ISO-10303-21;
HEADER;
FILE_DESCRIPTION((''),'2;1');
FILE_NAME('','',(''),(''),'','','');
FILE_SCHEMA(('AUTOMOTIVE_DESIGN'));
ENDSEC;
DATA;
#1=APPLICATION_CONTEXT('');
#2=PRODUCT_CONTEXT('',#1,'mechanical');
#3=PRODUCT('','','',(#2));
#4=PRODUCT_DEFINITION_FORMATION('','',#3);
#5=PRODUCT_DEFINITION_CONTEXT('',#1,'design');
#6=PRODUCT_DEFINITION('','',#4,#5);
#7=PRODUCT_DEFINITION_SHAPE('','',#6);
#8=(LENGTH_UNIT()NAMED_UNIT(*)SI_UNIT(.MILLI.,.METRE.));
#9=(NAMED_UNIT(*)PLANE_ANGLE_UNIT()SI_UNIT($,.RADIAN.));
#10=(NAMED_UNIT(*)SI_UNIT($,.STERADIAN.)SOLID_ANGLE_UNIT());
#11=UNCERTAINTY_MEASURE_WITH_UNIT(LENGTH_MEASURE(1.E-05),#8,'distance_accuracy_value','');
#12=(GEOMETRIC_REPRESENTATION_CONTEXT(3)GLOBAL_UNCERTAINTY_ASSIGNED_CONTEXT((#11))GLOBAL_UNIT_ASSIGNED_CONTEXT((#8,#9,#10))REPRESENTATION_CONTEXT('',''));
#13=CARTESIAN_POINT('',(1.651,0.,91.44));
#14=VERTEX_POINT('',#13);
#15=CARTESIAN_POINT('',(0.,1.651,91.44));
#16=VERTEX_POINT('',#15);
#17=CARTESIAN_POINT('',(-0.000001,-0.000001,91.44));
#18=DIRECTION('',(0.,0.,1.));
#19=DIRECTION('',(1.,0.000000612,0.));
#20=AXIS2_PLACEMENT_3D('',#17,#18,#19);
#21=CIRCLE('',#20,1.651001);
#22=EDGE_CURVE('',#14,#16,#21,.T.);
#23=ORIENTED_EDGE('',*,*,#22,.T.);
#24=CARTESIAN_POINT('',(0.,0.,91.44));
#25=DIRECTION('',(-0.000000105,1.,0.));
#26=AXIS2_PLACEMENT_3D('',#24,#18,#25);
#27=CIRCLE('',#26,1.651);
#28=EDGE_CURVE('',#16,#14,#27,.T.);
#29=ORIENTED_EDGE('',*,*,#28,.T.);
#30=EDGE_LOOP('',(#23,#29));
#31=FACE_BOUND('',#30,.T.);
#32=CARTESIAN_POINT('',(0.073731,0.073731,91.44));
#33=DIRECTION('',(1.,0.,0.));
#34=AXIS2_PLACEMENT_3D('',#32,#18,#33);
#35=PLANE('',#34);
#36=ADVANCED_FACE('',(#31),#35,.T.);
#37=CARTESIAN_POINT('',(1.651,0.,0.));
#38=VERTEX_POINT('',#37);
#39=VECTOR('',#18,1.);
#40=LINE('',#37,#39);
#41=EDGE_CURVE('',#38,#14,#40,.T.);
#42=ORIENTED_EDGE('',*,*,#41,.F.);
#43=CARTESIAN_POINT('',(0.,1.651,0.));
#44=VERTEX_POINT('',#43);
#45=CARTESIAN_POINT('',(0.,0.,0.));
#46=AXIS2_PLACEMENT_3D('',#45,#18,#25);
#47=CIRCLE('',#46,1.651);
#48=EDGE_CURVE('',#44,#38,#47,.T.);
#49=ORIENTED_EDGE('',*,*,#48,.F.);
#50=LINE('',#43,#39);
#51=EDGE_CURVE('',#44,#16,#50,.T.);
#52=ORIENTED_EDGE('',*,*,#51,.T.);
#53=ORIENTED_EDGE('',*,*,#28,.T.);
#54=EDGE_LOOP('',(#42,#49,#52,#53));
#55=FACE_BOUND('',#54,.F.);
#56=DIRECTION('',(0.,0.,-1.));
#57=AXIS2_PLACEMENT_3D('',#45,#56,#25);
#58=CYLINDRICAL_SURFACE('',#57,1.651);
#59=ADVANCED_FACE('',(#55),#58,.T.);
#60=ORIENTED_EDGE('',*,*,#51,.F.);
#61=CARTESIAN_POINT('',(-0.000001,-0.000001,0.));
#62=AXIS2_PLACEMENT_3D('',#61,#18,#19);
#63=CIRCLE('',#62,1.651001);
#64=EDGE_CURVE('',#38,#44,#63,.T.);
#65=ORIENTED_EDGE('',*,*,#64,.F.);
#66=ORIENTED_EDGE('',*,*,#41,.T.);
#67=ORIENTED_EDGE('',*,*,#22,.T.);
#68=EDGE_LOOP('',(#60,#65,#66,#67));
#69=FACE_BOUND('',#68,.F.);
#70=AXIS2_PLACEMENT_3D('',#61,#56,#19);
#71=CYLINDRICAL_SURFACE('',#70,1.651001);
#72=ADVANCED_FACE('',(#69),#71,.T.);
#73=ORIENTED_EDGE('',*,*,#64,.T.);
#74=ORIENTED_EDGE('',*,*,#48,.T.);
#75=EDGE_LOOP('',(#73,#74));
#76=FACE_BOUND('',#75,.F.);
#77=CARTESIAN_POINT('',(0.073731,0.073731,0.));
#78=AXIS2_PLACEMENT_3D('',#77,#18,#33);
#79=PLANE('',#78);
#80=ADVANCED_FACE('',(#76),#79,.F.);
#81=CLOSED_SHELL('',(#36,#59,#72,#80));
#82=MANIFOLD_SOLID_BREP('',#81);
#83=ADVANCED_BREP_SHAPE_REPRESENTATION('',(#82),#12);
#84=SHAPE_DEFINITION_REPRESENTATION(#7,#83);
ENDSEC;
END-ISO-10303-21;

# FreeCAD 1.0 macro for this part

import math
import FreeCAD as App
import Part
import Sketcher

V = App.Vector
Q = App.Units.Quantity

doc = App.newDocument("Part")
body = doc.addObject("PartDesign::Body", "Body")

# Sketch on XY plane
sketch1 = doc.addObject("Sketcher::SketchObject", "Sketch")
body.addObject(sketch1)
sketch1.AttachmentSupport = (doc.XY_Plane, [""])
sketch1.MapMode = "FlatFace"
sketch1.addGeometry([
    Part.ArcOfCircle(Part.Circle(V(0, 0, 0), V(0, 0, 1), 1.651), math.radians(90.000006), math.radians(359.999994)),
    Part.ArcOfCircle(Part.Circle(V(-0.000001, -0.000001, 0), V(0, 0, 1), 1.651001), math.radians(0.000035), math.radians(89.999965)),
], False)
sketch1.addConstraint([
    Sketcher.Constraint("Tangent", 0, 1, 1, 2),
    Sketcher.Constraint("Coincident", 1, 1, 0, 2),
    Sketcher.Constraint("Coincident", 0, 3, -1, 1),
    Sketcher.Constraint("PointOnObject", 0, 1, -2),
    Sketcher.Constraint("PointOnObject", 1, 1, -1),
    Sketcher.Constraint("Radius", 0, Q("0.065 in")),
])
pad1 = doc.addObject("PartDesign::Pad", "Pad")
body.addObject(pad1)
pad1.Profile = sketch1
pad1.Length = Q("3.6 in")

doc.recompute()
